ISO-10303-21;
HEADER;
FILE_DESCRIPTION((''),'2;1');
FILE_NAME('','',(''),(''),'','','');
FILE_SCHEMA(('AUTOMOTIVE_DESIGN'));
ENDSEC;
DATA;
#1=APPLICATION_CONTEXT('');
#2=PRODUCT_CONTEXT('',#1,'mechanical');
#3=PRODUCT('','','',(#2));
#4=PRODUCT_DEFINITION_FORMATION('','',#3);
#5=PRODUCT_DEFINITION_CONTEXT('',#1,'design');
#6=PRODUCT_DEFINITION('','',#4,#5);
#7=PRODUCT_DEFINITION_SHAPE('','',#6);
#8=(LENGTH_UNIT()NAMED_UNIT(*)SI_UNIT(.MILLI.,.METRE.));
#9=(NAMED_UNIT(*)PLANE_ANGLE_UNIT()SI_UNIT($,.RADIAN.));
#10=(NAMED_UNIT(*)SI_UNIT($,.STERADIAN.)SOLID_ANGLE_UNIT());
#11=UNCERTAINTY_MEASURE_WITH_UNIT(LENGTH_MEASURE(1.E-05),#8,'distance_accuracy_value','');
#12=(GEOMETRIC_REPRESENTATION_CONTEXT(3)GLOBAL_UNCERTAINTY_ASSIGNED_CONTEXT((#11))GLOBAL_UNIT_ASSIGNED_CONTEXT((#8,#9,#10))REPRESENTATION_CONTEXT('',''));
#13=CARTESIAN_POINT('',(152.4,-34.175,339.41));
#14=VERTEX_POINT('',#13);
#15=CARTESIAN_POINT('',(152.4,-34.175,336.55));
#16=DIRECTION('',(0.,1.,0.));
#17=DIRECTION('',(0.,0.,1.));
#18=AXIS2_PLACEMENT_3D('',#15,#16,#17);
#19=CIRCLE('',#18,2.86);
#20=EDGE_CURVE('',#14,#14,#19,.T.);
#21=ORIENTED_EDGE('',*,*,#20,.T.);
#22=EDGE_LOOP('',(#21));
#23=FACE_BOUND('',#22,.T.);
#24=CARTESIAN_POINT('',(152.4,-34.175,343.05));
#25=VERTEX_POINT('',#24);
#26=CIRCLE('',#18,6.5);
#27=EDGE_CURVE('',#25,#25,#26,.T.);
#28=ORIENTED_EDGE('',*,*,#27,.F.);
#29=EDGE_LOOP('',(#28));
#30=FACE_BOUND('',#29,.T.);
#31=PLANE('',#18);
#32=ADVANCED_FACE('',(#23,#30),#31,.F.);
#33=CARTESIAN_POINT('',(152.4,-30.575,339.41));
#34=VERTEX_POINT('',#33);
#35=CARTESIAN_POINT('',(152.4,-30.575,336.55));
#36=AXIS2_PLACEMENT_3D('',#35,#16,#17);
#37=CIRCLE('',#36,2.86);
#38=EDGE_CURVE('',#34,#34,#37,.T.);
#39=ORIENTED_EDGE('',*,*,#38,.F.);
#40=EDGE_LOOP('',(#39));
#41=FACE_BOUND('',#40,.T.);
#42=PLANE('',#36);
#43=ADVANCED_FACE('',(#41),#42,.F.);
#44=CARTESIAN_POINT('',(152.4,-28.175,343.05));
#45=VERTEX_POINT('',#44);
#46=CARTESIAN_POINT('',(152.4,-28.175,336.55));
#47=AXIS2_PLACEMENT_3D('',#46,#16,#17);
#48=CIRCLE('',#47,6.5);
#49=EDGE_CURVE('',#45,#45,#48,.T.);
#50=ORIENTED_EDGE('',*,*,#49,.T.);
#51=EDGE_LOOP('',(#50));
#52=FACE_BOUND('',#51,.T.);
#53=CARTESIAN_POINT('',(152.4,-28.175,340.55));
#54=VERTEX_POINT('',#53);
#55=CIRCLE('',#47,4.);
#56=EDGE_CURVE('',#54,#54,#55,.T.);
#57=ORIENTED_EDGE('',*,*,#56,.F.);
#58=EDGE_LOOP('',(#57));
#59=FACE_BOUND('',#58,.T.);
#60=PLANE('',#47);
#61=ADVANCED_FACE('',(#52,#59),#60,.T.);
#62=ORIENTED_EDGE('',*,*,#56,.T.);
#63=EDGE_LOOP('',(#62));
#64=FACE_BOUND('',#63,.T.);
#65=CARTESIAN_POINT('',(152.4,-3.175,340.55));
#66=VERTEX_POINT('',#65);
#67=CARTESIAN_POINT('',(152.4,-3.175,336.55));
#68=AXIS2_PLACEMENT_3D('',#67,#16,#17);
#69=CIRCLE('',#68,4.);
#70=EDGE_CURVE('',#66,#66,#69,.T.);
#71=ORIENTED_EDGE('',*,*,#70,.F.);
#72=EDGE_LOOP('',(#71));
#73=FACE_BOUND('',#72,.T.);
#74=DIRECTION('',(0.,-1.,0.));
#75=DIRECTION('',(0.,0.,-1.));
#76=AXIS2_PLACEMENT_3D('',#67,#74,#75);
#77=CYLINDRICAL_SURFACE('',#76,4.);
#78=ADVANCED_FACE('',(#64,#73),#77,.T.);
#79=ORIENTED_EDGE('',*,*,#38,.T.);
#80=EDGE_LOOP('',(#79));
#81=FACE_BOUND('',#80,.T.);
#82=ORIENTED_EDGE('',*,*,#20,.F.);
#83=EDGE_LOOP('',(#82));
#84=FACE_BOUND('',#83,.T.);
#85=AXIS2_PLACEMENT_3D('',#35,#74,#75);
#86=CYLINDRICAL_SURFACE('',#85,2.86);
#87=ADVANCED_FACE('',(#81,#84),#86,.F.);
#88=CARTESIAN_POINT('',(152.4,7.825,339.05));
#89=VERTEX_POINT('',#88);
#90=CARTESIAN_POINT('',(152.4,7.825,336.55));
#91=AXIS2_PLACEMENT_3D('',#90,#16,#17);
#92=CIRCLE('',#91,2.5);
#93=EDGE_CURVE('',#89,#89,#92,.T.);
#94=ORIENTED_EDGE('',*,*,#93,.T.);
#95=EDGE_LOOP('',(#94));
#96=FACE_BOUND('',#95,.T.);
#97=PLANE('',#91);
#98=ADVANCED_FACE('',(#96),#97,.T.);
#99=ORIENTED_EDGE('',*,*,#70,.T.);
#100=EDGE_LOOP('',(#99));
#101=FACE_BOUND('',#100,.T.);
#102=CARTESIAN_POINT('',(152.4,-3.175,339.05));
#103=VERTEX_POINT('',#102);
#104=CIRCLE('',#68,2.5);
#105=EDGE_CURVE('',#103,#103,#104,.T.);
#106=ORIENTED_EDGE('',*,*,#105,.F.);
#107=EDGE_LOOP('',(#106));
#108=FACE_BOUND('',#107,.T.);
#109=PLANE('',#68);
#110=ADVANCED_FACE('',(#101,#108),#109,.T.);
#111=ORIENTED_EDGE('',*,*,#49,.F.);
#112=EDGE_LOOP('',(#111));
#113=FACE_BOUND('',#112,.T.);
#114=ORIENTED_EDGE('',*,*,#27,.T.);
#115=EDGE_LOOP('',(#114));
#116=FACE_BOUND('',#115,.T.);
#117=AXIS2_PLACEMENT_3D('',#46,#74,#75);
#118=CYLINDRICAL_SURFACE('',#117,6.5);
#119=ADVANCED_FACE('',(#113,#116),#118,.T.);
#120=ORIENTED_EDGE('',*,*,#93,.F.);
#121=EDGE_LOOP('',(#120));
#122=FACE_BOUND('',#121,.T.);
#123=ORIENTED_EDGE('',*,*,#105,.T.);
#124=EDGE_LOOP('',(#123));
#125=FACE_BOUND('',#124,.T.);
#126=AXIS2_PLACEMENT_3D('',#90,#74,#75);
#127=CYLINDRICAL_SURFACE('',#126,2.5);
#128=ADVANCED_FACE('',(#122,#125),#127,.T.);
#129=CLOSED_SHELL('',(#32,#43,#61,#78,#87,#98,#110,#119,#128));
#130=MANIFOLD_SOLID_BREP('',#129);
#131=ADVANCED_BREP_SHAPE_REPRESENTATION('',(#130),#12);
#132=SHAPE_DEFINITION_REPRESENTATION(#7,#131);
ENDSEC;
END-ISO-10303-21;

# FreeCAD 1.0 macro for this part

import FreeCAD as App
import Part
import Sketcher
from FreeCAD import Vector

doc = App.newDocument("Part")
params = doc.addObject("Spreadsheet::Sheet", "Params")
for row, (alias, value) in enumerate([
    ("sketch1_diameter", "5 mm"),
    ("pad1_length", "11 mm"),
    ("sketch2_diameter", "8 mm"),
    ("pad2_length", "25 mm"),
    ("sketch3_diameter", "13 mm"),
    ("pad3_length", "6 mm"),
    ("sketch4_diameter", "5.72 mm"),
    ("pocket1_length", "3.6 mm"),
], start=1):
    params.set(f"A{row}", alias)
    params.set(f"B{row}", "=" + value)
    params.setAlias(f"B{row}", alias)

body = doc.addObject("PartDesign::Body", "Body")

# Sketch on XZ plane
sketch1 = body.newObject("Sketcher::SketchObject", "Sketch")
sketch1.AttachmentSupport = (doc.getObject("XZ_Plane"), [""])
sketch1.MapMode = "FlatFace"
sketch1.AttachmentOffset = App.Placement(Vector(0, 0, 3.175), App.Rotation())
sketch1.addGeometry(Part.Circle(Vector(152.4, 336.55, 0), Vector(0, 0, 1), 2.5), False)
sketch1.addConstraint([
    Sketcher.Constraint("Diameter", 0, 5.0),
    Sketcher.Constraint("DistanceX", -1, 1, 0, 3, 152.4),
    Sketcher.Constraint("DistanceY", -1, 1, 0, 3, 336.55),
])
sketch1.setExpression("Constraints[0]", "Params.sketch1_diameter")
pad1 = body.newObject("PartDesign::Pad", "Pad")
pad1.Profile = sketch1
pad1.setExpression("Length", "Params.pad1_length")
pad1.Reversed = True

# Sketch on XZ plane
sketch2 = body.newObject("Sketcher::SketchObject", "Sketch001")
sketch2.AttachmentSupport = (doc.getObject("XZ_Plane"), [""])
sketch2.MapMode = "FlatFace"
sketch2.AttachmentOffset = App.Placement(Vector(0, 0, 28.175), App.Rotation())
sketch2.addGeometry(Part.Circle(Vector(152.4, 336.55, 0), Vector(0, 0, 1), 4), False)
sketch2.addConstraint([
    Sketcher.Constraint("Diameter", 0, 8.0),
    Sketcher.Constraint("DistanceX", -1, 1, 0, 3, 152.4),
    Sketcher.Constraint("DistanceY", -1, 1, 0, 3, 336.55),
])
sketch2.setExpression("Constraints[0]", "Params.sketch2_diameter")
pad2 = body.newObject("PartDesign::Pad", "Pad001")
pad2.Profile = sketch2
pad2.setExpression("Length", "Params.pad2_length")
pad2.Reversed = True

# Sketch on XZ plane
sketch3 = body.newObject("Sketcher::SketchObject", "Sketch002")
sketch3.AttachmentSupport = (doc.getObject("XZ_Plane"), [""])
sketch3.MapMode = "FlatFace"
sketch3.AttachmentOffset = App.Placement(Vector(0, 0, 34.175), App.Rotation())
sketch3.addGeometry(Part.Circle(Vector(152.4, 336.55, 0), Vector(0, 0, 1), 6.5), False)
sketch3.addConstraint([
    Sketcher.Constraint("Diameter", 0, 13.0),
    Sketcher.Constraint("DistanceX", -1, 1, 0, 3, 152.4),
    Sketcher.Constraint("DistanceY", -1, 1, 0, 3, 336.55),
])
sketch3.setExpression("Constraints[0]", "Params.sketch3_diameter")
pad3 = body.newObject("PartDesign::Pad", "Pad002")
pad3.Profile = sketch3
pad3.setExpression("Length", "Params.pad3_length")
pad3.Reversed = True

# Sketch on XZ plane
sketch4 = body.newObject("Sketcher::SketchObject", "Sketch003")
sketch4.AttachmentSupport = (doc.getObject("XZ_Plane"), [""])
sketch4.MapMode = "FlatFace"
sketch4.AttachmentOffset = App.Placement(Vector(0, 0, 34.175), App.Rotation())
sketch4.addGeometry(Part.Circle(Vector(152.4, 336.55, 0), Vector(0, 0, 1), 2.86), False)
sketch4.addConstraint([
    Sketcher.Constraint("Diameter", 0, 5.72),
    Sketcher.Constraint("DistanceX", -1, 1, 0, 3, 152.4),
    Sketcher.Constraint("DistanceY", -1, 1, 0, 3, 336.55),
])
sketch4.setExpression("Constraints[0]", "Params.sketch4_diameter")
pocket1 = body.newObject("PartDesign::Pocket", "Pocket")
pocket1.Profile = sketch4
pocket1.setExpression("Length", "Params.pocket1_length")

doc.recompute()
